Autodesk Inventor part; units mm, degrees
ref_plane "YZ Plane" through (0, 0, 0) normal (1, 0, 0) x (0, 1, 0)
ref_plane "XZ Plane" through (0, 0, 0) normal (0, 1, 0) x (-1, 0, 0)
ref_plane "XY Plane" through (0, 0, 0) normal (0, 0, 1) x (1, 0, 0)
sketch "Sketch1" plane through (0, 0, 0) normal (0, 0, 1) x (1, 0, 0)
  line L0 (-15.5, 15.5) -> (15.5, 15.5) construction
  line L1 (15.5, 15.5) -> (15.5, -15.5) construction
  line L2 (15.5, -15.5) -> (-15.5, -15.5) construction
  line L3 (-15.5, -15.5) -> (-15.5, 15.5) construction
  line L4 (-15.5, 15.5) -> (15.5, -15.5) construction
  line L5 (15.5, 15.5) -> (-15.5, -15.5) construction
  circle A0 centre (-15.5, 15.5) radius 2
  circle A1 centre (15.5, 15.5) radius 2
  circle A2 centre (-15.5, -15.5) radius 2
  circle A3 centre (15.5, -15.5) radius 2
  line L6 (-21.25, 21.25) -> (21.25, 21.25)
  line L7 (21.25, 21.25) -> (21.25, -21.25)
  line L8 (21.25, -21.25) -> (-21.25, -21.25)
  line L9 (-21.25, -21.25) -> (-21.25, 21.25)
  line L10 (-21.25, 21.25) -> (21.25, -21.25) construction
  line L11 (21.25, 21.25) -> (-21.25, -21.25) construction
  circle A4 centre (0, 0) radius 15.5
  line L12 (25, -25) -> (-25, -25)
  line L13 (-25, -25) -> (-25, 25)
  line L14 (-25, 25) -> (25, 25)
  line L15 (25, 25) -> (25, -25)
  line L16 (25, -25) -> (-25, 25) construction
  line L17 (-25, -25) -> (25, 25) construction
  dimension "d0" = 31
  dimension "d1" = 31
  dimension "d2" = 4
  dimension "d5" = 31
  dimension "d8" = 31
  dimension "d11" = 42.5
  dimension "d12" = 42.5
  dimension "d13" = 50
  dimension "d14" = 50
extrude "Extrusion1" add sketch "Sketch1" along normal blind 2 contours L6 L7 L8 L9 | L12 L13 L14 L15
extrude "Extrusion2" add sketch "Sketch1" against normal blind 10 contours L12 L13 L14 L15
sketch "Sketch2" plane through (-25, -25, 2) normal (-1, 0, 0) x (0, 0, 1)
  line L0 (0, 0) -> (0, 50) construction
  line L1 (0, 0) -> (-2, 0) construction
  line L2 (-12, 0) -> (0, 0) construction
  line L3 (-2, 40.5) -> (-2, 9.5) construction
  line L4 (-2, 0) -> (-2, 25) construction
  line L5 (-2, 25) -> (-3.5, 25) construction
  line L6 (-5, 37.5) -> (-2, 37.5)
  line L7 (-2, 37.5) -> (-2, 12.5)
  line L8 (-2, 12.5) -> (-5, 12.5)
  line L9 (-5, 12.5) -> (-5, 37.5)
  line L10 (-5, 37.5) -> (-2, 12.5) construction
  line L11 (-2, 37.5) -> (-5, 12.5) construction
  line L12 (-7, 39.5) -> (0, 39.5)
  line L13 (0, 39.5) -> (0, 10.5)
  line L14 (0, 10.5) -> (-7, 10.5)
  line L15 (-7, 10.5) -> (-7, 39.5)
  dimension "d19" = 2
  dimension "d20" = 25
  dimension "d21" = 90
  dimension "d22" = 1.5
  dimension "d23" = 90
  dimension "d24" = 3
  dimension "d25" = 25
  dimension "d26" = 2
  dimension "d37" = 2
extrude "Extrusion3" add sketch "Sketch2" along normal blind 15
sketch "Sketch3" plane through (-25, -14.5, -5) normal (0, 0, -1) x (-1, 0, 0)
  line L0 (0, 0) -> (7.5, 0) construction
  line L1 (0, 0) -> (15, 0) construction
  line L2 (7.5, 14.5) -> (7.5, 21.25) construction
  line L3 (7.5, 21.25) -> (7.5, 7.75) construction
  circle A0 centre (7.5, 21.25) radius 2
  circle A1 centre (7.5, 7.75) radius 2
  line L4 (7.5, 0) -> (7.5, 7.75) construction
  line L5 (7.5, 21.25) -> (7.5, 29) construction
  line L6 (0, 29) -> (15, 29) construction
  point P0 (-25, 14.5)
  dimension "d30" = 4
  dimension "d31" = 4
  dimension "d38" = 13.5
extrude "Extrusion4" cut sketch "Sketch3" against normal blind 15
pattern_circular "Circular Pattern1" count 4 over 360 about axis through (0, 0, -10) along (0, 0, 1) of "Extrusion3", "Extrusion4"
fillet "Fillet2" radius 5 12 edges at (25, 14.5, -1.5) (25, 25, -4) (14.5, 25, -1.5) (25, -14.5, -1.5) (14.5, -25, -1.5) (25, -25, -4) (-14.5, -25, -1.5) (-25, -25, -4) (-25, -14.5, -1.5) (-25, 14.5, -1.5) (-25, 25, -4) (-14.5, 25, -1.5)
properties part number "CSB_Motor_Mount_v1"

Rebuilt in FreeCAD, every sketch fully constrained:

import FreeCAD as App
import Part
import Sketcher


def edges_at(feature, points):
    """Names of the edges that pass closest to the given points."""
    edges = feature.Shape.Edges
    near = lambda p: min(range(len(edges)), key=lambda i: edges[i].distToShape(Part.Vertex(*p))[0])
    return sorted({f"Edge{near(p) + 1}" for p in points})

doc = App.newDocument("Part")
body = doc.addObject("PartDesign::Body", "Body")

# Sketch on XY plane
sketch1 = body.newObject("Sketcher::SketchObject", "Sketch")
sketch1.AttachmentSupport = (doc.getObject("XY_Plane"), [""])
sketch1.MapMode = "FlatFace"
sketch1.addGeometry([
    Part.LineSegment(App.Vector(-25, -25, 0), App.Vector(25, -25, 0)),  # 0
    Part.LineSegment(App.Vector(25, -25, 0), App.Vector(25, 25, 0)),  # 1
    Part.LineSegment(App.Vector(25, 25, 0), App.Vector(-25, 25, 0)),  # 2
    Part.LineSegment(App.Vector(-25, 25, 0), App.Vector(-25, -25, 0)),  # 3
    Part.Circle(App.Vector(-15.5, -15.5, 0), App.Vector(0, 0, 1), 2),  # 4
    Part.Circle(App.Vector(15.5, -15.5, 0), App.Vector(0, 0, 1), 2),  # 5
    Part.Circle(App.Vector(-15.5, 15.5, 0), App.Vector(0, 0, 1), 2),  # 6
    Part.Circle(App.Vector(0, 0, 0), App.Vector(0, 0, 1), 15.5),  # 7
    Part.Circle(App.Vector(15.5, 15.5, 0), App.Vector(0, 0, 1), 2),  # 8
], False)
sketch1.addConstraint([
    Sketcher.Constraint("Coincident", 0, 2, 1, 1),
    Sketcher.Constraint("Coincident", 1, 2, 2, 1),
    Sketcher.Constraint("Coincident", 2, 2, 3, 1),
    Sketcher.Constraint("Coincident", 3, 2, 0, 1),
    Sketcher.Constraint("Horizontal", 0),
    Sketcher.Constraint("Vertical", 1),
    Sketcher.Constraint("Horizontal", 2),
    Sketcher.Constraint("Vertical", 3),
    Sketcher.Constraint("Coincident", 7, 3, -1, 1),
    Sketcher.Constraint("Equal", 4, 5),
    Sketcher.Constraint("Equal", 5, 6),
    Sketcher.Constraint("Equal", 6, 8),
    Sketcher.Constraint("Symmetric", 5, 3, 6, 3, -1, 1),
    Sketcher.Constraint("Symmetric", 4, 3, 8, 3, -1, 1),
    Sketcher.Constraint("Symmetric", 0, 2, 2, 2, -1, 1),
    Sketcher.Constraint("Symmetric", 4, 3, 5, 3, -2),
    Sketcher.Constraint("Equal", 2, 1),
    Sketcher.Constraint("Diameter", 4, 4.0),
    Sketcher.Constraint("Diameter", 7, 31.0),
    Sketcher.Constraint("DistanceX", 0, 1, 0, 2, 50.0),
    Sketcher.Constraint("DistanceX", 4, 3, 5, 3, 31.0),
    Sketcher.Constraint("DistanceY", 4, 3, 6, 3, 31.0),
])
pad1 = body.newObject("PartDesign::Pad", "Pad")
pad1.Profile = sketch1
pad1.Length = 2

# Sketch on XY plane
sketch2 = body.newObject("Sketcher::SketchObject", "Sketch001")
sketch2.AttachmentSupport = (doc.getObject("XY_Plane"), [""])
sketch2.MapMode = "FlatFace"
sketch2.addGeometry([
    Part.LineSegment(App.Vector(-25, -25, 0), App.Vector(25, -25, 0)),  # 0
    Part.LineSegment(App.Vector(25, -25, 0), App.Vector(25, 25, 0)),  # 1
    Part.LineSegment(App.Vector(25, 25, 0), App.Vector(-25, 25, 0)),  # 2
    Part.LineSegment(App.Vector(-25, 25, 0), App.Vector(-25, -25, 0)),  # 3
    Part.LineSegment(App.Vector(-21, -21, 0), App.Vector(-21, 21, 0)),  # 4
    Part.LineSegment(App.Vector(-21, 21, 0), App.Vector(21, 21, 0)),  # 5
    Part.LineSegment(App.Vector(21, 21, 0), App.Vector(21, -21, 0)),  # 6
    Part.LineSegment(App.Vector(21, -21, 0), App.Vector(-21, -21, 0)),  # 7
], False)
sketch2.addConstraint([
    Sketcher.Constraint("Coincident", 0, 2, 1, 1),
    Sketcher.Constraint("Coincident", 1, 2, 2, 1),
    Sketcher.Constraint("Coincident", 2, 2, 3, 1),
    Sketcher.Constraint("Coincident", 3, 2, 0, 1),
    Sketcher.Constraint("Coincident", 4, 2, 5, 1),
    Sketcher.Constraint("Coincident", 5, 2, 6, 1),
    Sketcher.Constraint("Coincident", 6, 2, 7, 1),
    Sketcher.Constraint("Coincident", 7, 2, 4, 1),
    Sketcher.Constraint("Horizontal", 0),
    Sketcher.Constraint("Vertical", 1),
    Sketcher.Constraint("Horizontal", 2),
    Sketcher.Constraint("Vertical", 3),
    Sketcher.Constraint("Vertical", 4),
    Sketcher.Constraint("Horizontal", 5),
    Sketcher.Constraint("Vertical", 6),
    Sketcher.Constraint("Horizontal", 7),
    Sketcher.Constraint("Symmetric", 0, 2, 2, 2, -1, 1),
    Sketcher.Constraint("Symmetric", 4, 2, 6, 2, -1, 1),
    Sketcher.Constraint("Equal", 2, 1),
    Sketcher.Constraint("Equal", 7, 4),
    Sketcher.Constraint("DistanceX", 0, 1, 0, 2, 50.0),
    Sketcher.Constraint("DistanceX", 5, 1, 5, 2, 42.5),
])
pad2 = body.newObject("PartDesign::Pad", "Pad001")
pad2.Profile = sketch2
pad2.Length = 10
pad2.Reversed = True

# Sketch on YZ plane
sketch3 = body.newObject("Sketcher::SketchObject", "Sketch002")
sketch3.AttachmentSupport = (doc.getObject("YZ_Plane"), [""])
sketch3.MapMode = "FlatFace"
sketch3.AttachmentOffset = App.Placement(App.Vector(0, 0, -25), App.Rotation())
sketch3.addGeometry([
    Part.LineSegment(App.Vector(14.5, 2, 0), App.Vector(14.5, -5, 0)),  # 0
    Part.LineSegment(App.Vector(14.5, -5, 0), App.Vector(-14.5, -5, 0)),  # 1
    Part.LineSegment(App.Vector(-14.5, -5, 0), App.Vector(-14.5, 2, 0)),  # 2
    Part.LineSegment(App.Vector(-14.5, 2, 0), App.Vector(14.5, 2, 0)),  # 3
    Part.LineSegment(App.Vector(-12.5, -3, 0), App.Vector(12.5, -3, 0)),  # 4
    Part.LineSegment(App.Vector(12.5, -3, 0), App.Vector(12.5, 0, 0)),  # 5
    Part.LineSegment(App.Vector(12.5, 0, 0), App.Vector(-12.5, 0, 0)),  # 6
    Part.LineSegment(App.Vector(-12.5, 0, 0), App.Vector(-12.5, -3, 0)),  # 7
], False)
sketch3.addConstraint([
    Sketcher.Constraint("Coincident", 0, 2, 1, 1),
    Sketcher.Constraint("Coincident", 1, 2, 2, 1),
    Sketcher.Constraint("Coincident", 2, 2, 3, 1),
    Sketcher.Constraint("Coincident", 3, 2, 0, 1),
    Sketcher.Constraint("Coincident", 4, 2, 5, 1),
    Sketcher.Constraint("Coincident", 5, 2, 6, 1),
    Sketcher.Constraint("Coincident", 6, 2, 7, 1),
    Sketcher.Constraint("Coincident", 7, 2, 4, 1),
    Sketcher.Constraint("Vertical", 0),
    Sketcher.Constraint("Horizontal", 1),
    Sketcher.Constraint("Vertical", 2),
    Sketcher.Constraint("Horizontal", 3),
    Sketcher.Constraint("Horizontal", 4),
    Sketcher.Constraint("Vertical", 5),
    Sketcher.Constraint("Horizontal", 6),
    Sketcher.Constraint("Vertical", 7),
    Sketcher.Constraint("Symmetric", 5, 2, 6, 2, -1, 1),
    Sketcher.Constraint("DistanceX", 4, 1, 4, 2, 25.0),
    Sketcher.Constraint("DistanceY", 5, 1, 5, 2, 3.0),
    Sketcher.Constraint("DistanceY", -1, 1, 2, 2, 2.0),
    Sketcher.Constraint("DistanceX", 4, 2, 0, 2, 2.0),
    Sketcher.Constraint("DistanceY", 0, 2, 4, 2, 2.0),
    Sketcher.Constraint("DistanceX", 2, 2, 6, 2, 2.0),
])
pad3 = body.newObject("PartDesign::Pad", "Pad002")
pad3.Profile = sketch3
pad3.Length = 15
pad3.Reversed = True

# Sketch on XY plane
sketch4 = body.newObject("Sketcher::SketchObject", "Sketch003")
sketch4.AttachmentSupport = (doc.getObject("XY_Plane"), [""])
sketch4.MapMode = "FlatFace"
sketch4.AttachmentOffset = App.Placement(App.Vector(0, 0, -5), App.Rotation())
sketch4.addGeometry([
    Part.Circle(App.Vector(-32.5, 6.8, 0), App.Vector(0, 0, 1), 2),
    Part.Circle(App.Vector(-32.5, -6.8, 0), App.Vector(0, 0, 1), 2),
], False)
sketch4.addConstraint([
    Sketcher.Constraint("Equal", 0, 1),
    Sketcher.Constraint("Symmetric", 0, 3, 1, 3, -1),
    Sketcher.Constraint("Diameter", 0, 4.0),
    Sketcher.Constraint("DistanceY", 1, 3, 0, 3, 13.5),
    Sketcher.Constraint("DistanceX", 0, 3, -1, 1, 32.5),
])
pocket1 = body.newObject("PartDesign::Pocket", "Pocket")
pocket1.Profile = sketch4
pocket1.Length = 15
pocket1.Reversed = True
doc.recompute()

polarpattern = body.newObject("PartDesign::PolarPattern", "PolarPattern")
polarpattern.Originals = [pad3, pocket1]
polarpattern.Axis = (doc.getObject("Z_Axis"), [""])
polarpattern.Angle = 360
polarpattern.Occurrences = 4
body.Tip = polarpattern
doc.recompute()

fillet = body.newObject("PartDesign::Fillet", "Fillet")
fillet.Base = (polarpattern, edges_at(polarpattern, [
    (25, 14.5, -1.5),
    (25, 25, -4),
    (14.5, 25, -1.5),
    (25, -14.5, -1.5),
    (14.5, -25, -1.5),
    (25, -25, -4),
    (-14.5, -25, -1.5),
    (-25, -25, -4),
    (-25, -14.5, -1.5),
    (-25, 14.5, -1.5),
    (-25, 25, -4),
    (-14.5, 25, -1.5),
]))
fillet.Radius = 5

doc.recompute()
